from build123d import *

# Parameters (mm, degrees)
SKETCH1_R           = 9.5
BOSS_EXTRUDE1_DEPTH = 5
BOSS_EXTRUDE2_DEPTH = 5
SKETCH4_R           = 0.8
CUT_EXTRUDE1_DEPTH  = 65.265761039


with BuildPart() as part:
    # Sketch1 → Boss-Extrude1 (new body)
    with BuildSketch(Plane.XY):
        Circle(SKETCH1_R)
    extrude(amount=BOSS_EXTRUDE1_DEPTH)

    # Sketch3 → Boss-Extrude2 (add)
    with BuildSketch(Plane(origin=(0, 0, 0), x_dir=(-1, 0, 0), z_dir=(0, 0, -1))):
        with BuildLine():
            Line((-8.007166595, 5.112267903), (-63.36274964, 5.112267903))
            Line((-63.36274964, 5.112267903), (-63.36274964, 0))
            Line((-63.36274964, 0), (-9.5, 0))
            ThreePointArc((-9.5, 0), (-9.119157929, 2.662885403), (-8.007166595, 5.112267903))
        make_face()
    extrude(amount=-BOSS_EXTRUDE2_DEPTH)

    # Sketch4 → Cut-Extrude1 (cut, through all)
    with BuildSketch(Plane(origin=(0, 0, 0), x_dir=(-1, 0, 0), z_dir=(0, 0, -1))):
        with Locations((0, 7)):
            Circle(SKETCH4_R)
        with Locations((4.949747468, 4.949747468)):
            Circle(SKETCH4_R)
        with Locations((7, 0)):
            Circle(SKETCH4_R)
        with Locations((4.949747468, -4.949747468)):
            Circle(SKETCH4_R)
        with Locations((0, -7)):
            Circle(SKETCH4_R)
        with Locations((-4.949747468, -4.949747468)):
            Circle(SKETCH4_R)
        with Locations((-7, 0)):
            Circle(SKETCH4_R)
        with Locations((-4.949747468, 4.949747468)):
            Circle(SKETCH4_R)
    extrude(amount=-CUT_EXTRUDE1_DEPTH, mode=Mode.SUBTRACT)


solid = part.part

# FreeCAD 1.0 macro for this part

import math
import FreeCAD as App
import Part
import Sketcher
from FreeCAD import Vector
Q = App.Units.Quantity

doc = App.newDocument("Part")
body = doc.addObject("PartDesign::Body", "Body")

# Sketch on XY plane
sketch1 = doc.addObject("Sketcher::SketchObject", "Sketch")
body.addObject(sketch1)
sketch1.AttachmentSupport = (doc.XY_Plane, [""])
sketch1.MapMode = "FlatFace"
sketch1.addGeometry(Part.Circle(Vector(0, 0, 0), Vector(0, 0, 1), 10), False)
sketch1.addConstraint([
    Sketcher.Constraint("Coincident", 0, 3, -1, 1),
    Sketcher.Constraint("Diameter", 0, Q("19 mm")),
])
pad1 = doc.addObject("PartDesign::Pad", "Pad")
body.addObject(pad1)
pad1.Profile = sketch1
pad1.Length = 5

# Sketch on XY plane
sketch2 = doc.addObject("Sketcher::SketchObject", "Sketch001")
body.addObject(sketch2)
sketch2.AttachmentSupport = (doc.XY_Plane, [""])
sketch2.MapMode = "FlatFace"
sketch2.addGeometry([
    Part.LineSegment(Vector(8, 5, 0), Vector(63, 5, 0)),
    Part.LineSegment(Vector(63, 5, 0), Vector(63, 0, 0)),
    Part.LineSegment(Vector(63, 0, 0), Vector(10, 0, 0)),
    Part.ArcOfCircle(Part.Circle(Vector(0, 0, 0), Vector(0, 0, 1), 9), math.radians(0), math.radians(33)),
], False)
sketch2.addConstraint([
    Sketcher.Constraint("Coincident", 0, 2, 1, 1),
    Sketcher.Constraint("Coincident", 1, 2, 2, 1),
    Sketcher.Constraint("Coincident", 2, 2, 3, 1),
    Sketcher.Constraint("Coincident", 3, 2, 0, 1),
    Sketcher.Constraint("Horizontal", 0),
    Sketcher.Constraint("Vertical", 1),
    Sketcher.Constraint("Horizontal", 2),
    Sketcher.Constraint("Coincident", 3, 3, -1, 1),
    Sketcher.Constraint("PointOnObject", 1, 2, -1),
    Sketcher.Constraint("Radius", 3, Q("9.5 mm")),
    Sketcher.Constraint("DistanceX", 2, 2, 2, 1, Q("53.86275 mm")),
    Sketcher.Constraint("DistanceX", 0, 1, 0, 2, Q("55.355583 mm")),
])
pad2 = doc.addObject("PartDesign::Pad", "Pad001")
body.addObject(pad2)
pad2.Profile = sketch2
pad2.Length = 5

# Sketch on XY plane
sketch3 = doc.addObject("Sketcher::SketchObject", "Sketch002")
body.addObject(sketch3)
sketch3.AttachmentSupport = (doc.XY_Plane, [""])
sketch3.MapMode = "FlatFace"
sketch3.addGeometry([
    Part.Circle(Vector(0, 7, 0), Vector(0, 0, 1), 0.8),  # 0
    Part.Circle(Vector(-4.9, 4.9, 0), Vector(0, 0, 1), 0.8),  # 1
    Part.Circle(Vector(-7, 0, 0), Vector(0, 0, 1), 0.8),  # 2
    Part.Circle(Vector(-4.9, -4.9, 0), Vector(0, 0, 1), 0.8),  # 3
    Part.Circle(Vector(0, -7, 0), Vector(0, 0, 1), 0.8),  # 4
    Part.Circle(Vector(4.9, -4.9, 0), Vector(0, 0, 1), 0.8),  # 5
    Part.Circle(Vector(7, 0, 0), Vector(0, 0, 1), 0.8),  # 6
    Part.Circle(Vector(4.9, 4.9, 0), Vector(0, 0, 1), 0.8),  # 7
], False)
sketch3.addConstraint([
    Sketcher.Constraint("Equal", 0, 1),
    Sketcher.Constraint("Equal", 1, 2),
    Sketcher.Constraint("Equal", 2, 3),
    Sketcher.Constraint("Equal", 3, 4),
    Sketcher.Constraint("Equal", 4, 5),
    Sketcher.Constraint("Equal", 5, 6),
    Sketcher.Constraint("Equal", 6, 7),
    Sketcher.Constraint("Symmetric", 0, 3, 4, 3, -1, 1),
    Sketcher.Constraint("Symmetric", 1, 3, 5, 3, -1, 1),
    Sketcher.Constraint("Symmetric", 2, 3, 6, 3, -1, 1),
    Sketcher.Constraint("Symmetric", 3, 3, 7, 3, -1, 1),
    Sketcher.Constraint("Symmetric", 3, 3, 5, 3, -2),
    Sketcher.Constraint("PointOnObject", 0, 3, -2),
    Sketcher.Constraint("PointOnObject", 2, 3, -1),
    Sketcher.Constraint("Diameter", 0, Q("1.6 mm")),
    Sketcher.Constraint("DistanceY", -1, 1, 0, 3, Q("7 mm")),
    Sketcher.Constraint("DistanceX", 2, 3, -1, 1, Q("7 mm")),
    Sketcher.Constraint("DistanceX", 1, 3, -1, 1, Q("4.949747 mm")),
    Sketcher.Constraint("DistanceY", -1, 1, 1, 3, Q("4.949747 mm")),
])
pocket1 = doc.addObject("PartDesign::Pocket", "Pocket")
body.addObject(pocket1)
pocket1.Profile = sketch3
pocket1.Type = "ThroughAll"
pocket1.Reversed = True

doc.recompute()
